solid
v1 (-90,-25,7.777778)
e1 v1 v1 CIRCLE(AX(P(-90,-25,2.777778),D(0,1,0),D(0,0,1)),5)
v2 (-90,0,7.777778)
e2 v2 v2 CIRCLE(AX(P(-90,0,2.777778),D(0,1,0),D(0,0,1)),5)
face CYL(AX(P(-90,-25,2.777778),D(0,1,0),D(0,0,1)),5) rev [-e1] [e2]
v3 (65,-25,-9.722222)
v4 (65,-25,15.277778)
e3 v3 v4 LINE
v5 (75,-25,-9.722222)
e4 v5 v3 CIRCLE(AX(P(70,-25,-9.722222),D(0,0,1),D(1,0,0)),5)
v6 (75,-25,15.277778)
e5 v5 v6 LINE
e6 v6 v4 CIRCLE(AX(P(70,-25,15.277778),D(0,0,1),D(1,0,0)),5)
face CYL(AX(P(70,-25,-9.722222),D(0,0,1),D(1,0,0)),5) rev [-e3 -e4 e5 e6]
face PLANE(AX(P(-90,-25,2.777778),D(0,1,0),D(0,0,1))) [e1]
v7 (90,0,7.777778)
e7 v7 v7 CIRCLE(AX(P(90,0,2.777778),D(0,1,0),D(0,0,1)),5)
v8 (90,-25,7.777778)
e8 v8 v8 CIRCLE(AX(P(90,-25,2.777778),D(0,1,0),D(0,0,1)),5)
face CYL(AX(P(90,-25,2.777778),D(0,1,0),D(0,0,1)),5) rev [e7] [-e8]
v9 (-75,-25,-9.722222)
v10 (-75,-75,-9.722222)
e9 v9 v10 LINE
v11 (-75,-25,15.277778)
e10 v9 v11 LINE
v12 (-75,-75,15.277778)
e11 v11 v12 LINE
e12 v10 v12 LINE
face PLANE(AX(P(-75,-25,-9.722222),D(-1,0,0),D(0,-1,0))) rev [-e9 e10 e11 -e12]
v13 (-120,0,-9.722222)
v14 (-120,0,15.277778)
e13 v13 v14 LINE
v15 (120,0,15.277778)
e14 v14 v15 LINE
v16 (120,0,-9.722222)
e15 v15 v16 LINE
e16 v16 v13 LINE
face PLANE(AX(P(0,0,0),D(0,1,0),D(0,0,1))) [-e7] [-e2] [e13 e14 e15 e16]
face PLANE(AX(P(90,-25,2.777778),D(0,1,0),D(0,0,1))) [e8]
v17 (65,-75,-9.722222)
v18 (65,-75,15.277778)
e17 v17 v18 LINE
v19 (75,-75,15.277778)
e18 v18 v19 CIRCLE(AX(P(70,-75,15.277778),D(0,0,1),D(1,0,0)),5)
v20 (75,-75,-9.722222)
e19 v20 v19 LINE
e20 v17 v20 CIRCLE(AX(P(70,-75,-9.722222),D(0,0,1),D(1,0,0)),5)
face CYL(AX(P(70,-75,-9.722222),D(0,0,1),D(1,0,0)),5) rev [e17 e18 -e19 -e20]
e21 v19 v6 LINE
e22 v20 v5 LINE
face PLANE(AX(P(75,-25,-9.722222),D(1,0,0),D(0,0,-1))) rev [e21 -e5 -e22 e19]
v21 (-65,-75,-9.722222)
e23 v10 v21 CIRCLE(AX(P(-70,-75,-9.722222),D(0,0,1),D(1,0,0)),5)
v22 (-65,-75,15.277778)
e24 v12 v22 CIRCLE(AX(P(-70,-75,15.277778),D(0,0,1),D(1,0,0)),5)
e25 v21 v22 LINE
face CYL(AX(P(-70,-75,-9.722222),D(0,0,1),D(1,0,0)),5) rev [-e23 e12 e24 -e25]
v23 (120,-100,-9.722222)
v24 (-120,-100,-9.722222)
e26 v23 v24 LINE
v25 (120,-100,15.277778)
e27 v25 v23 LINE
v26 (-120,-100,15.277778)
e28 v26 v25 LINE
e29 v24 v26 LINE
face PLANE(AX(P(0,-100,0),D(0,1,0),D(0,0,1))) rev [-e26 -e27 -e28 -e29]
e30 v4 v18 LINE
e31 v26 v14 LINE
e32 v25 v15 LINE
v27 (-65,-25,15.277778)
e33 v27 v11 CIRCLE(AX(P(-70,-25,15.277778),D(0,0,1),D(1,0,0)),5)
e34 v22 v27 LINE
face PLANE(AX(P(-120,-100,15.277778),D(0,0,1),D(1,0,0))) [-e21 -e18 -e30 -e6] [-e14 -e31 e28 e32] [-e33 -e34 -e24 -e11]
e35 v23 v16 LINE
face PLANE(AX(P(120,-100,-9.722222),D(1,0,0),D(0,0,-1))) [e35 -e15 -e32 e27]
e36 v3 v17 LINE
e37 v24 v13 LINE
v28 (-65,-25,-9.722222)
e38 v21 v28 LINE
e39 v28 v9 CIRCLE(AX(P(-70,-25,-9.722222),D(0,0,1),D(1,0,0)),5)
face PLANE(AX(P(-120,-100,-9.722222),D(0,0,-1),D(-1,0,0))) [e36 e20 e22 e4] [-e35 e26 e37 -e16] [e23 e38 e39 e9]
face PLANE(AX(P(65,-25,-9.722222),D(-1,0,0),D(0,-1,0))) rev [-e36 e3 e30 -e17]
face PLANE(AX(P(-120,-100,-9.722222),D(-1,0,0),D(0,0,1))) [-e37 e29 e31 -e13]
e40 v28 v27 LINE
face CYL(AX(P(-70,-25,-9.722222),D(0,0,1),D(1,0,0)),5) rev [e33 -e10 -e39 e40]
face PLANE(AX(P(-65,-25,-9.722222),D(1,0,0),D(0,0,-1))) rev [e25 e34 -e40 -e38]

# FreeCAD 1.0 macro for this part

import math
import FreeCAD as App
import Part
import Sketcher
Q = App.Units.Quantity


def add_polygon(sketch, points):
    """Adds a closed chain of lines whose ends are joined by coincident constraints."""
    first, n = sketch.GeometryCount, len(points)
    for a, b in zip(points, points[1:] + points[:1]):
        sketch.addGeometry(Part.LineSegment(App.Vector(*a, 0), App.Vector(*b, 0)), False)
    for i in range(n):
        sketch.addConstraint(Sketcher.Constraint("Coincident", first + i, 2, first + (i + 1) % n, 1))

doc = App.newDocument("Part")
body = doc.addObject("PartDesign::Body", "Body")

# Sketch on XZ plane
sketch1 = body.newObject("Sketcher::SketchObject", "Sketch")
sketch1.AttachmentSupport = (doc.getObject("XZ_Plane"), [""])
sketch1.MapMode = "FlatFace"
add_polygon(sketch1, [(-120, -9.722222), (-120, 15.277778), (120, 15.277778), (120, -9.722222)])  # lines 0-3
sketch1.addConstraint([
    Sketcher.Constraint("Vertical", 0),
    Sketcher.Constraint("Horizontal", 1),
    Sketcher.Constraint("Vertical", 2),
    Sketcher.Constraint("Horizontal", 3),
    Sketcher.Constraint("DistanceX", 1, 1, 1, 2, Q("240 mm")),
    Sketcher.Constraint("DistanceY", 0, 1, 0, 2, Q("25 mm")),
    Sketcher.Constraint("DistanceX", 0, 2, -1, 1, Q("120 mm")),
    Sketcher.Constraint("DistanceY", -1, 1, 0, 2, Q("15.277778 mm")),
])
pad1 = body.newObject("PartDesign::Pad", "Pad")
pad1.Profile = sketch1
pad1.Length = 100

# Sketch on XZ plane
sketch2 = body.newObject("Sketcher::SketchObject", "Sketch001")
sketch2.AttachmentSupport = (doc.getObject("XZ_Plane"), [""])
sketch2.MapMode = "FlatFace"
sketch2.addGeometry([
    Part.Circle(App.Vector(-90, 2.777778, 0), App.Vector(0, 0, 1), 5),
    Part.Circle(App.Vector(90, 2.777778, 0), App.Vector(0, 0, 1), 5),
], False)
sketch2.addConstraint([
    Sketcher.Constraint("Equal", 0, 1),
    Sketcher.Constraint("Symmetric", 0, 3, 1, 3, -2),
    Sketcher.Constraint("Diameter", 0, Q("10 mm")),
    Sketcher.Constraint("DistanceX", 0, 3, -1, 1, Q("90 mm")),
    Sketcher.Constraint("DistanceY", -1, 1, 0, 3, Q("2.777778 mm")),
])
pocket1 = body.newObject("PartDesign::Pocket", "Pocket")
pocket1.Profile = sketch2
pocket1.Length = 25
pocket1.Reversed = True

# Sketch on XY plane
sketch3 = body.newObject("Sketcher::SketchObject", "Sketch002")
sketch3.AttachmentSupport = (doc.getObject("XY_Plane"), [""])
sketch3.MapMode = "FlatFace"
sketch3.AttachmentOffset = App.Placement(App.Vector(0, 0, 15.277778), App.Rotation())
sketch3.addGeometry([
    Part.LineSegment(App.Vector(-75, -25, 0), App.Vector(-75, -75, 0)),  # 0
    Part.ArcOfCircle(Part.Circle(App.Vector(-70, -75, 0), App.Vector(0, 0, 1), 5), math.radians(180), math.radians(360)),  # 1
    Part.LineSegment(App.Vector(-65, -75, 0), App.Vector(-65, -25, 0)),  # 2
    Part.ArcOfCircle(Part.Circle(App.Vector(-70, -25, 0), App.Vector(0, 0, 1), 5), math.radians(0), math.radians(180)),  # 3
    Part.LineSegment(App.Vector(65, -25, 0), App.Vector(65, -75, 0)),  # 4
    Part.ArcOfCircle(Part.Circle(App.Vector(70, -75, 0), App.Vector(0, 0, 1), 5), math.radians(180), math.radians(360)),  # 5
    Part.LineSegment(App.Vector(75, -75, 0), App.Vector(75, -25, 0)),  # 6
    Part.ArcOfCircle(Part.Circle(App.Vector(70, -25, 0), App.Vector(0, 0, 1), 5), math.radians(0), math.radians(180)),  # 7
], False)
sketch3.addConstraint([
    Sketcher.Constraint("Tangent", 0, 2, 1, 1),
    Sketcher.Constraint("Tangent", 1, 2, 2, 1),
    Sketcher.Constraint("Tangent", 2, 2, 3, 1),
    Sketcher.Constraint("Tangent", 3, 2, 0, 1),
    Sketcher.Constraint("Tangent", 4, 2, 5, 1),
    Sketcher.Constraint("Tangent", 5, 2, 6, 1),
    Sketcher.Constraint("Tangent", 6, 2, 7, 1),
    Sketcher.Constraint("Tangent", 7, 2, 4, 1),
    Sketcher.Constraint("Vertical", 0),
    Sketcher.Constraint("Vertical", 2),
    Sketcher.Constraint("Vertical", 4),
    Sketcher.Constraint("Vertical", 6),
    Sketcher.Constraint("Equal", 3, 5),
    Sketcher.Constraint("Symmetric", 1, 3, 5, 3, -2),
    Sketcher.Constraint("Horizontal", 3, 3, 7, 3),
    Sketcher.Constraint("Radius", 1, Q("5 mm")),
    Sketcher.Constraint("DistanceY", 0, 2, 0, 1, Q("50 mm")),
    Sketcher.Constraint("DistanceX", 1, 3, -1, 1, Q("70 mm")),
    Sketcher.Constraint("DistanceY", 1, 3, -1, 1, Q("75 mm")),
])
pocket2 = body.newObject("PartDesign::Pocket", "Pocket001")
pocket2.Profile = sketch3
pocket2.Length = 25

doc.recompute()
